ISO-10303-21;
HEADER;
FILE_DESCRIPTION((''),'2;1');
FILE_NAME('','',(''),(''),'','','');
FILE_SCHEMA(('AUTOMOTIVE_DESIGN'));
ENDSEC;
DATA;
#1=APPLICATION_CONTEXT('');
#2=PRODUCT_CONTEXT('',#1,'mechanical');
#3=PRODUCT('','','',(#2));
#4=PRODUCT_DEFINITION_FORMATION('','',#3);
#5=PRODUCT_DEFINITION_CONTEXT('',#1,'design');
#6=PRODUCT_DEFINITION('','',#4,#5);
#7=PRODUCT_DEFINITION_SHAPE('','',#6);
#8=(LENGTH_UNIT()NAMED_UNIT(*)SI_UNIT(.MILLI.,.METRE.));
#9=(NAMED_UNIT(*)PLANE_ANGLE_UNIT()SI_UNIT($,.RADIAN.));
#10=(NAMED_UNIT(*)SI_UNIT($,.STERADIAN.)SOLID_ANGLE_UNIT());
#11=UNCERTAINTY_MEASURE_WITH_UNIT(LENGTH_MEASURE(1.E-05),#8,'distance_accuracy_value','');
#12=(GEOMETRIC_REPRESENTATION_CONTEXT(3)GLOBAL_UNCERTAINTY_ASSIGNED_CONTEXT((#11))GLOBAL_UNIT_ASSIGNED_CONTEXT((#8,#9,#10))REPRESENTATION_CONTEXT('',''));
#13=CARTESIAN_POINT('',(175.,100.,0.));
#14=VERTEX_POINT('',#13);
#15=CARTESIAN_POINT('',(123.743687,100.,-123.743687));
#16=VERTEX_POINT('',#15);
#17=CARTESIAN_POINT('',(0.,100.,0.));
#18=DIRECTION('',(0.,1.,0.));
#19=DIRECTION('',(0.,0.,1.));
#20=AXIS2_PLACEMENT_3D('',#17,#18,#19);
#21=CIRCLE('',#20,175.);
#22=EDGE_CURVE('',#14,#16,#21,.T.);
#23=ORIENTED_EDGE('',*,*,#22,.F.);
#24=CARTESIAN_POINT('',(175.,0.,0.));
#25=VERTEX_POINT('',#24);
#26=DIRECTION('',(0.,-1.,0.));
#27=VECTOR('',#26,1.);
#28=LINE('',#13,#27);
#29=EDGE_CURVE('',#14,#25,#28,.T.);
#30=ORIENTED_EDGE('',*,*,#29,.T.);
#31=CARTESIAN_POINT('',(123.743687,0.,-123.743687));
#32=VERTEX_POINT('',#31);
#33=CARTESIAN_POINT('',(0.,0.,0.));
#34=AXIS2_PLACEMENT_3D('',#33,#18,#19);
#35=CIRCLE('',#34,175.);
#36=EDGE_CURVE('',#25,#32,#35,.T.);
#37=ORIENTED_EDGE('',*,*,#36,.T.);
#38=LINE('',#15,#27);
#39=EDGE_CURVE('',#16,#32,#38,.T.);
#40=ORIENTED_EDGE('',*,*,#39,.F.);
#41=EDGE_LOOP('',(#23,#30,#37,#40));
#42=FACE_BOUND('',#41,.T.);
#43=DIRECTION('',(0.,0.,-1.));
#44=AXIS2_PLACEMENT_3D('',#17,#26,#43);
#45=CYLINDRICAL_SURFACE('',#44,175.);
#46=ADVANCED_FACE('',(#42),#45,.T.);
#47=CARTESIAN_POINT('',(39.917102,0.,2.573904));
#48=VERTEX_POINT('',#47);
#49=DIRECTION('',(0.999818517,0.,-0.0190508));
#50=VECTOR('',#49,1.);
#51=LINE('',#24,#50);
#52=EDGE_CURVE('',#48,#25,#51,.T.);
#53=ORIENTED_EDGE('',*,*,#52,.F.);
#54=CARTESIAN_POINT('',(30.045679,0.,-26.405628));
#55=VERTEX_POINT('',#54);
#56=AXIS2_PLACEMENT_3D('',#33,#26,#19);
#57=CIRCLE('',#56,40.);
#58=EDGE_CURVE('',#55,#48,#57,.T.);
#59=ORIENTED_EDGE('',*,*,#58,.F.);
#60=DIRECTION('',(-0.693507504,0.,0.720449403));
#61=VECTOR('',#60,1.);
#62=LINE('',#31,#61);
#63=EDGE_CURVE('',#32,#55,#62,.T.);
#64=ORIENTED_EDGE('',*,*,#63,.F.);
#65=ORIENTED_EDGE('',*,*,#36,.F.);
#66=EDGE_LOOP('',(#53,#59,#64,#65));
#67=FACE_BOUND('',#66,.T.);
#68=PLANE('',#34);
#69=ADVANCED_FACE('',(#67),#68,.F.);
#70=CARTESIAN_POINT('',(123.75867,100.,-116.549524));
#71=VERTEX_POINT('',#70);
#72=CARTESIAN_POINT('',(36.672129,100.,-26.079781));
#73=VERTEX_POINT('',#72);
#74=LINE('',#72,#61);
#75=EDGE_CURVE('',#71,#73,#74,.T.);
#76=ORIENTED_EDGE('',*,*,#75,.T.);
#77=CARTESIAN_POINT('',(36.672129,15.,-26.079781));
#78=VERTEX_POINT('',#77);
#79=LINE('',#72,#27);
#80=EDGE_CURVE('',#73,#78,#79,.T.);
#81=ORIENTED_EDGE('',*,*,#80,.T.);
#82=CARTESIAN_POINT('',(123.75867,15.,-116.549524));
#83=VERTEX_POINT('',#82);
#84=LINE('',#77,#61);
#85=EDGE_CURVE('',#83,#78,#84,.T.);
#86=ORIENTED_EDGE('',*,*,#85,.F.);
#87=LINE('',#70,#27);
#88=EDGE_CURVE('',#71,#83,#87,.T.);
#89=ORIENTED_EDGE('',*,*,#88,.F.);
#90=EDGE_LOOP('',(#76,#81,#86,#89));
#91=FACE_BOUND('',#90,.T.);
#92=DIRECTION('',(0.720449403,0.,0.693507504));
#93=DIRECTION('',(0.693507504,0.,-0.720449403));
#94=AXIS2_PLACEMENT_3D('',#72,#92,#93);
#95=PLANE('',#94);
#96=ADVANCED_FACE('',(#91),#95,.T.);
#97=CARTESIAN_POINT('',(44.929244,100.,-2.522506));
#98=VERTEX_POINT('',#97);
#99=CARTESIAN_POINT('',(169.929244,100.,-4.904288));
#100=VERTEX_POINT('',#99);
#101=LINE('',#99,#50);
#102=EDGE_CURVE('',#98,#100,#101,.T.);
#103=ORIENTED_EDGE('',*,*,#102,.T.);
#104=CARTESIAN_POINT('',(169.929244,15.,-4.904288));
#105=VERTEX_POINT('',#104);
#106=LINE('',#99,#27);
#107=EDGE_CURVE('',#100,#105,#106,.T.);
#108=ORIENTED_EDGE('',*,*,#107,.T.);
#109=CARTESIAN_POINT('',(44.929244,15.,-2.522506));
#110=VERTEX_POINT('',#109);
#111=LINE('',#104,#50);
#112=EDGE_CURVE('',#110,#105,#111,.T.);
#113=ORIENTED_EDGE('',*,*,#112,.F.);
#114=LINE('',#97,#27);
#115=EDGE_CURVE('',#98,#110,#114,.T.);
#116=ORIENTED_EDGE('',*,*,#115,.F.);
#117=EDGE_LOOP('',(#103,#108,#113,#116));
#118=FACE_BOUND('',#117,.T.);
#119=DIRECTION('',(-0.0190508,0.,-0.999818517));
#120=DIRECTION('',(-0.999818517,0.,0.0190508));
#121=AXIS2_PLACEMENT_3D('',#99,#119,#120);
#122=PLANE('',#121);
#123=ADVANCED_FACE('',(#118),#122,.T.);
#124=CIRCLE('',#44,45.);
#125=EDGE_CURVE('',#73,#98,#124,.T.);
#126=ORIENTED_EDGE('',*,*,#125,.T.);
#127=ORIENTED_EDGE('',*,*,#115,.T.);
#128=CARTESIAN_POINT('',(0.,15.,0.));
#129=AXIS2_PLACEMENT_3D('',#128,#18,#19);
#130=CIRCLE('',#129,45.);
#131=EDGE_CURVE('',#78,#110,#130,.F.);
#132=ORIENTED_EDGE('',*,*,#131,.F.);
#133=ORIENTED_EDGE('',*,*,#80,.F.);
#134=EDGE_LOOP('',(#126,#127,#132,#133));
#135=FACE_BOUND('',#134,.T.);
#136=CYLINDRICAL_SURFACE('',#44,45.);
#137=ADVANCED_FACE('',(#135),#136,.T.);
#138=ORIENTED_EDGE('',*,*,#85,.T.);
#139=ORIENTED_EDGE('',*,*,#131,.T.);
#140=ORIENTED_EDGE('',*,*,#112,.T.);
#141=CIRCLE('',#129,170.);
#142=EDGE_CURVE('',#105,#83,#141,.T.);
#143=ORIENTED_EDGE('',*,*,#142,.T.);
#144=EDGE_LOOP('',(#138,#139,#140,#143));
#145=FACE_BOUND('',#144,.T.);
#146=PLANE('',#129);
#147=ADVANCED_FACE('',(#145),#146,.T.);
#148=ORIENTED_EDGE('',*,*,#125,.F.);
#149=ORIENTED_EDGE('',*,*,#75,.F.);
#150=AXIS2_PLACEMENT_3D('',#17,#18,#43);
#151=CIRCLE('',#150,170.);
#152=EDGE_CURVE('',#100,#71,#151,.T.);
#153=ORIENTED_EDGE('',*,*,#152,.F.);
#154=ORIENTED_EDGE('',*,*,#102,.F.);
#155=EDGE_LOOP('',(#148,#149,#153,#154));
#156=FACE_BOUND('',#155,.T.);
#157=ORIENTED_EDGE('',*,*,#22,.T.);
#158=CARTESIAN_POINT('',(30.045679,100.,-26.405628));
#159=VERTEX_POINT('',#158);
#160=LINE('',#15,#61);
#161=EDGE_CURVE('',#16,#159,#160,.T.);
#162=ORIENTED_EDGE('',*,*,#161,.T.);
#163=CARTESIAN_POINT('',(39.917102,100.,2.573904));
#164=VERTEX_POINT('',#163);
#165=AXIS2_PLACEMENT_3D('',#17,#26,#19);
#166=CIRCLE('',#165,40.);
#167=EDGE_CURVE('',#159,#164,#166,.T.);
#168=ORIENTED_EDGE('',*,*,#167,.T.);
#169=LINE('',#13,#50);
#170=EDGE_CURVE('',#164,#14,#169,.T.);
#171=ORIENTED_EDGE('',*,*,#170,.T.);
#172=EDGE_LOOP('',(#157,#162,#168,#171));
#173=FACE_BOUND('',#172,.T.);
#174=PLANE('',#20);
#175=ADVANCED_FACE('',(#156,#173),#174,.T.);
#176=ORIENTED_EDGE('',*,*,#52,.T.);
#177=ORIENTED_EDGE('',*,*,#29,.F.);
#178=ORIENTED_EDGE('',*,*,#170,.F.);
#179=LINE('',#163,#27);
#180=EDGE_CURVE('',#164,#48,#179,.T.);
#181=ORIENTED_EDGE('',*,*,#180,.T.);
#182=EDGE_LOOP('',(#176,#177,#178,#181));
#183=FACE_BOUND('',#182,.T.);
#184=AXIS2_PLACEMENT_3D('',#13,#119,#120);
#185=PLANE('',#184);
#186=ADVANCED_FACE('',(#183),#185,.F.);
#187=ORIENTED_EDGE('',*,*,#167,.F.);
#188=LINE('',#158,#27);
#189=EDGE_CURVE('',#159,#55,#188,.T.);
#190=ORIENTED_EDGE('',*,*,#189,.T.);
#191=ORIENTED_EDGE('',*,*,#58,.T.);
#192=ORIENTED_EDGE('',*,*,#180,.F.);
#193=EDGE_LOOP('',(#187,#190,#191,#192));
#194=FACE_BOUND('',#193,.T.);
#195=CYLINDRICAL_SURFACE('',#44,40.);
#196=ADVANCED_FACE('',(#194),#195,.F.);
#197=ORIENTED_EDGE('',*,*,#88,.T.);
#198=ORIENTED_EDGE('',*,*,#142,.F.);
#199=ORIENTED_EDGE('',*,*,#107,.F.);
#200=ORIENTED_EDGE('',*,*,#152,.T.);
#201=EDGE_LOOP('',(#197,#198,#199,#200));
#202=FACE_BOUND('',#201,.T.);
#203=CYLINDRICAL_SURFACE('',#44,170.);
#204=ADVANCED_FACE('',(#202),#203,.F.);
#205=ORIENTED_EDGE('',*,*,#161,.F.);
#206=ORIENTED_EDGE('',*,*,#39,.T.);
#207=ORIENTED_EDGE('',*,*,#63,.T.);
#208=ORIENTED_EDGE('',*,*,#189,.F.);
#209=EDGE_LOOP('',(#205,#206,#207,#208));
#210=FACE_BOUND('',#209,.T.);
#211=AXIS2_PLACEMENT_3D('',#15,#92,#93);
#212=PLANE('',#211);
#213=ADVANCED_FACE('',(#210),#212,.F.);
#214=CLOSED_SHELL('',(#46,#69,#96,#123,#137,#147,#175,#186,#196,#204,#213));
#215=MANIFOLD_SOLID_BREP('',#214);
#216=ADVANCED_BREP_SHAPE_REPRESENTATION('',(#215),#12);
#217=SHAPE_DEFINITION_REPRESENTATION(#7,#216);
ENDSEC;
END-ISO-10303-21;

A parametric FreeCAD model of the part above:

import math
import FreeCAD as App
import Part
import Sketcher
Q = App.Units.Quantity

doc = App.newDocument("Part")
params = doc.addObject("Spreadsheet::Sheet", "Params")
for row, (alias, value) in enumerate([
    ("sketch1_radius", "40 mm"),
    ("sketch1_radius2", "175 mm"),
    ("sketch1_radius3", "45 mm"),
    ("sketch1_radius4", "170 mm"),
    ("pad1_length", "100 mm"),
    ("sketch2_radius", "175 mm"),
    ("sketch2_radius2", "40 mm"),
    ("pad2_length", "15 mm"),
], start=1):
    params.set(f"A{row}", alias)
    params.set(f"B{row}", "=" + value)
    params.setAlias(f"B{row}", alias)

body = doc.addObject("PartDesign::Body", "Body")

# Sketch on XZ plane
sketch1 = doc.addObject("Sketcher::SketchObject", "Sketch")
body.addObject(sketch1)
sketch1.AttachmentSupport = (doc.XZ_Plane, [""])
sketch1.MapMode = "FlatFace"
sketch1.addGeometry(Part.LineSegment(App.Vector(123.743687, -123.743687, 0), App.Vector(30.045679, -26.405628, 0)), False)
sketch1.addGeometry(Part.ArcOfCircle(Part.Circle(App.Vector(0, 0, 0), App.Vector(0, 0, 1), 40), math.radians(-41.310604), math.radians(3.689396)), False)
sketch1.addGeometry(Part.LineSegment(App.Vector(39.917102, 2.573904, 0), App.Vector(175, 0, 0)), False)
sketch1.addGeometry(Part.ArcOfCircle(Part.Circle(App.Vector(0, 0, 0), App.Vector(0, 0, 1), 175), math.radians(-45), math.radians(0)), False)
sketch1.addGeometry(Part.ArcOfCircle(Part.Circle(App.Vector(0, 0, 0), App.Vector(0, 0, 1), 45), math.radians(-35.418946), math.radians(-3.213439)), False)
sketch1.addGeometry(Part.LineSegment(App.Vector(36.672129, -26.079781, 0), App.Vector(123.75867, -116.549524, 0)), False)
sketch1.addGeometry(Part.ArcOfCircle(Part.Circle(App.Vector(0, 0, 0), App.Vector(0, 0, 1), 170), math.radians(-43.281666), math.radians(-1.653141)), False)
sketch1.addGeometry(Part.LineSegment(App.Vector(169.929244, -4.904288, 0), App.Vector(44.929244, -2.522506, 0)), False)
sketch1.addConstraint(Sketcher.Constraint("Coincident", 0, 2, 1, 1))
sketch1.addConstraint(Sketcher.Constraint("Coincident", 1, 2, 2, 1))
sketch1.addConstraint(Sketcher.Constraint("Coincident", 2, 2, 3, 2))
sketch1.addConstraint(Sketcher.Constraint("Coincident", 3, 1, 0, 1))
sketch1.addConstraint(Sketcher.Constraint("Coincident", 4, 1, 5, 1))
sketch1.addConstraint(Sketcher.Constraint("Coincident", 5, 2, 6, 1))
sketch1.addConstraint(Sketcher.Constraint("Coincident", 6, 2, 7, 1))
sketch1.addConstraint(Sketcher.Constraint("Coincident", 7, 2, 4, 2))
sketch1.addConstraint(Sketcher.Constraint("Coincident", 1, 3, -1, 1))
sketch1.addConstraint(Sketcher.Constraint("Coincident", 3, 3, -1, 1))
sketch1.addConstraint(Sketcher.Constraint("Coincident", 4, 3, -1, 1))
sketch1.addConstraint(Sketcher.Constraint("Coincident", 6, 3, -1, 1))
sketch1.addConstraint(Sketcher.Constraint("PointOnObject", 2, 2, -1))
sketch1.addConstraint(Sketcher.Constraint("Radius", 1, Q("40 mm")))
sketch1.addConstraint(Sketcher.Constraint("Radius", 3, Q("175 mm")))
sketch1.addConstraint(Sketcher.Constraint("Radius", 4, Q("45 mm")))
sketch1.addConstraint(Sketcher.Constraint("Radius", 6, Q("170 mm")))
sketch1.addConstraint(Sketcher.Constraint("DistanceX", -1, 1, 1, 2, Q("39.917102 mm")))
sketch1.addConstraint(Sketcher.Constraint("DistanceY", 3, 1, 6, 2, Q("118.839399 mm")))
sketch1.addConstraint(Sketcher.Constraint("Distance", 7, Q("125.022689 mm")))
sketch1.addConstraint(Sketcher.Constraint("DistanceX", -1, 1, 0, 2, Q("30.045679 mm")))
sketch1.addConstraint(Sketcher.Constraint("DistanceX", -1, 1, 4, 1, Q("36.672129 mm")))
sketch1.addConstraint(Sketcher.Constraint("DistanceX", -1, 1, 5, 2, Q("123.75867 mm")))
sketch1.addConstraint(Sketcher.Constraint("DistanceY", 6, 2, -1, 1, Q("4.904288 mm")))
sketch1.setExpression("Constraints[13]", "Params.sketch1_radius")
sketch1.setExpression("Constraints[14]", "Params.sketch1_radius2")
sketch1.setExpression("Constraints[15]", "Params.sketch1_radius3")
sketch1.setExpression("Constraints[16]", "Params.sketch1_radius4")
pad1 = doc.addObject("PartDesign::Pad", "Pad")
body.addObject(pad1)
pad1.Profile = sketch1
pad1.setExpression("Length", "Params.pad1_length")
pad1.Reversed = True

# Sketch on XZ plane
sketch2 = doc.addObject("Sketcher::SketchObject", "Sketch001")
body.addObject(sketch2)
sketch2.AttachmentSupport = (doc.XZ_Plane, [""])
sketch2.MapMode = "FlatFace"
sketch2.addGeometry(Part.LineSegment(App.Vector(40, 3, 0), App.Vector(175, 0, 0)), False)
sketch2.addGeometry(Part.ArcOfCircle(Part.Circle(App.Vector(0, 0, 0), App.Vector(0, 0, 1), 175), math.radians(-45), math.radians(0)), False)
sketch2.addGeometry(Part.LineSegment(App.Vector(124, -124, 0), App.Vector(30, -26, 0)), False)
sketch2.addGeometry(Part.ArcOfCircle(Part.Circle(App.Vector(0, 0, 0), App.Vector(0, 0, 1), 40), math.radians(-41), math.radians(4)), False)
sketch2.addConstraint(Sketcher.Constraint("Coincident", 0, 2, 1, 2))
sketch2.addConstraint(Sketcher.Constraint("Coincident", 1, 1, 2, 1))
sketch2.addConstraint(Sketcher.Constraint("Coincident", 2, 2, 3, 1))
sketch2.addConstraint(Sketcher.Constraint("Coincident", 3, 2, 0, 1))
sketch2.addConstraint(Sketcher.Constraint("Coincident", 1, 3, -1, 1))
sketch2.addConstraint(Sketcher.Constraint("Coincident", 3, 3, -1, 1))
sketch2.addConstraint(Sketcher.Constraint("PointOnObject", 0, 2, -1))
sketch2.addConstraint(Sketcher.Constraint("Equal", 0, 2))
sketch2.addConstraint(Sketcher.Constraint("Radius", 1, Q("175 mm")))
sketch2.addConstraint(Sketcher.Constraint("Radius", 3, Q("40 mm")))
sketch2.addConstraint(Sketcher.Constraint("DistanceX", -1, 1, 3, 2, Q("39.917102 mm")))
sketch2.addConstraint(Sketcher.Constraint("DistanceX", -1, 1, 2, 2, Q("30.045679 mm")))
sketch2.setExpression("Constraints[8]", "Params.sketch2_radius")
sketch2.setExpression("Constraints[9]", "Params.sketch2_radius2")
pad2 = doc.addObject("PartDesign::Pad", "Pad001")
body.addObject(pad2)
pad2.Profile = sketch2
pad2.setExpression("Length", "Params.pad2_length")
pad2.Reversed = True

doc.recompute()
